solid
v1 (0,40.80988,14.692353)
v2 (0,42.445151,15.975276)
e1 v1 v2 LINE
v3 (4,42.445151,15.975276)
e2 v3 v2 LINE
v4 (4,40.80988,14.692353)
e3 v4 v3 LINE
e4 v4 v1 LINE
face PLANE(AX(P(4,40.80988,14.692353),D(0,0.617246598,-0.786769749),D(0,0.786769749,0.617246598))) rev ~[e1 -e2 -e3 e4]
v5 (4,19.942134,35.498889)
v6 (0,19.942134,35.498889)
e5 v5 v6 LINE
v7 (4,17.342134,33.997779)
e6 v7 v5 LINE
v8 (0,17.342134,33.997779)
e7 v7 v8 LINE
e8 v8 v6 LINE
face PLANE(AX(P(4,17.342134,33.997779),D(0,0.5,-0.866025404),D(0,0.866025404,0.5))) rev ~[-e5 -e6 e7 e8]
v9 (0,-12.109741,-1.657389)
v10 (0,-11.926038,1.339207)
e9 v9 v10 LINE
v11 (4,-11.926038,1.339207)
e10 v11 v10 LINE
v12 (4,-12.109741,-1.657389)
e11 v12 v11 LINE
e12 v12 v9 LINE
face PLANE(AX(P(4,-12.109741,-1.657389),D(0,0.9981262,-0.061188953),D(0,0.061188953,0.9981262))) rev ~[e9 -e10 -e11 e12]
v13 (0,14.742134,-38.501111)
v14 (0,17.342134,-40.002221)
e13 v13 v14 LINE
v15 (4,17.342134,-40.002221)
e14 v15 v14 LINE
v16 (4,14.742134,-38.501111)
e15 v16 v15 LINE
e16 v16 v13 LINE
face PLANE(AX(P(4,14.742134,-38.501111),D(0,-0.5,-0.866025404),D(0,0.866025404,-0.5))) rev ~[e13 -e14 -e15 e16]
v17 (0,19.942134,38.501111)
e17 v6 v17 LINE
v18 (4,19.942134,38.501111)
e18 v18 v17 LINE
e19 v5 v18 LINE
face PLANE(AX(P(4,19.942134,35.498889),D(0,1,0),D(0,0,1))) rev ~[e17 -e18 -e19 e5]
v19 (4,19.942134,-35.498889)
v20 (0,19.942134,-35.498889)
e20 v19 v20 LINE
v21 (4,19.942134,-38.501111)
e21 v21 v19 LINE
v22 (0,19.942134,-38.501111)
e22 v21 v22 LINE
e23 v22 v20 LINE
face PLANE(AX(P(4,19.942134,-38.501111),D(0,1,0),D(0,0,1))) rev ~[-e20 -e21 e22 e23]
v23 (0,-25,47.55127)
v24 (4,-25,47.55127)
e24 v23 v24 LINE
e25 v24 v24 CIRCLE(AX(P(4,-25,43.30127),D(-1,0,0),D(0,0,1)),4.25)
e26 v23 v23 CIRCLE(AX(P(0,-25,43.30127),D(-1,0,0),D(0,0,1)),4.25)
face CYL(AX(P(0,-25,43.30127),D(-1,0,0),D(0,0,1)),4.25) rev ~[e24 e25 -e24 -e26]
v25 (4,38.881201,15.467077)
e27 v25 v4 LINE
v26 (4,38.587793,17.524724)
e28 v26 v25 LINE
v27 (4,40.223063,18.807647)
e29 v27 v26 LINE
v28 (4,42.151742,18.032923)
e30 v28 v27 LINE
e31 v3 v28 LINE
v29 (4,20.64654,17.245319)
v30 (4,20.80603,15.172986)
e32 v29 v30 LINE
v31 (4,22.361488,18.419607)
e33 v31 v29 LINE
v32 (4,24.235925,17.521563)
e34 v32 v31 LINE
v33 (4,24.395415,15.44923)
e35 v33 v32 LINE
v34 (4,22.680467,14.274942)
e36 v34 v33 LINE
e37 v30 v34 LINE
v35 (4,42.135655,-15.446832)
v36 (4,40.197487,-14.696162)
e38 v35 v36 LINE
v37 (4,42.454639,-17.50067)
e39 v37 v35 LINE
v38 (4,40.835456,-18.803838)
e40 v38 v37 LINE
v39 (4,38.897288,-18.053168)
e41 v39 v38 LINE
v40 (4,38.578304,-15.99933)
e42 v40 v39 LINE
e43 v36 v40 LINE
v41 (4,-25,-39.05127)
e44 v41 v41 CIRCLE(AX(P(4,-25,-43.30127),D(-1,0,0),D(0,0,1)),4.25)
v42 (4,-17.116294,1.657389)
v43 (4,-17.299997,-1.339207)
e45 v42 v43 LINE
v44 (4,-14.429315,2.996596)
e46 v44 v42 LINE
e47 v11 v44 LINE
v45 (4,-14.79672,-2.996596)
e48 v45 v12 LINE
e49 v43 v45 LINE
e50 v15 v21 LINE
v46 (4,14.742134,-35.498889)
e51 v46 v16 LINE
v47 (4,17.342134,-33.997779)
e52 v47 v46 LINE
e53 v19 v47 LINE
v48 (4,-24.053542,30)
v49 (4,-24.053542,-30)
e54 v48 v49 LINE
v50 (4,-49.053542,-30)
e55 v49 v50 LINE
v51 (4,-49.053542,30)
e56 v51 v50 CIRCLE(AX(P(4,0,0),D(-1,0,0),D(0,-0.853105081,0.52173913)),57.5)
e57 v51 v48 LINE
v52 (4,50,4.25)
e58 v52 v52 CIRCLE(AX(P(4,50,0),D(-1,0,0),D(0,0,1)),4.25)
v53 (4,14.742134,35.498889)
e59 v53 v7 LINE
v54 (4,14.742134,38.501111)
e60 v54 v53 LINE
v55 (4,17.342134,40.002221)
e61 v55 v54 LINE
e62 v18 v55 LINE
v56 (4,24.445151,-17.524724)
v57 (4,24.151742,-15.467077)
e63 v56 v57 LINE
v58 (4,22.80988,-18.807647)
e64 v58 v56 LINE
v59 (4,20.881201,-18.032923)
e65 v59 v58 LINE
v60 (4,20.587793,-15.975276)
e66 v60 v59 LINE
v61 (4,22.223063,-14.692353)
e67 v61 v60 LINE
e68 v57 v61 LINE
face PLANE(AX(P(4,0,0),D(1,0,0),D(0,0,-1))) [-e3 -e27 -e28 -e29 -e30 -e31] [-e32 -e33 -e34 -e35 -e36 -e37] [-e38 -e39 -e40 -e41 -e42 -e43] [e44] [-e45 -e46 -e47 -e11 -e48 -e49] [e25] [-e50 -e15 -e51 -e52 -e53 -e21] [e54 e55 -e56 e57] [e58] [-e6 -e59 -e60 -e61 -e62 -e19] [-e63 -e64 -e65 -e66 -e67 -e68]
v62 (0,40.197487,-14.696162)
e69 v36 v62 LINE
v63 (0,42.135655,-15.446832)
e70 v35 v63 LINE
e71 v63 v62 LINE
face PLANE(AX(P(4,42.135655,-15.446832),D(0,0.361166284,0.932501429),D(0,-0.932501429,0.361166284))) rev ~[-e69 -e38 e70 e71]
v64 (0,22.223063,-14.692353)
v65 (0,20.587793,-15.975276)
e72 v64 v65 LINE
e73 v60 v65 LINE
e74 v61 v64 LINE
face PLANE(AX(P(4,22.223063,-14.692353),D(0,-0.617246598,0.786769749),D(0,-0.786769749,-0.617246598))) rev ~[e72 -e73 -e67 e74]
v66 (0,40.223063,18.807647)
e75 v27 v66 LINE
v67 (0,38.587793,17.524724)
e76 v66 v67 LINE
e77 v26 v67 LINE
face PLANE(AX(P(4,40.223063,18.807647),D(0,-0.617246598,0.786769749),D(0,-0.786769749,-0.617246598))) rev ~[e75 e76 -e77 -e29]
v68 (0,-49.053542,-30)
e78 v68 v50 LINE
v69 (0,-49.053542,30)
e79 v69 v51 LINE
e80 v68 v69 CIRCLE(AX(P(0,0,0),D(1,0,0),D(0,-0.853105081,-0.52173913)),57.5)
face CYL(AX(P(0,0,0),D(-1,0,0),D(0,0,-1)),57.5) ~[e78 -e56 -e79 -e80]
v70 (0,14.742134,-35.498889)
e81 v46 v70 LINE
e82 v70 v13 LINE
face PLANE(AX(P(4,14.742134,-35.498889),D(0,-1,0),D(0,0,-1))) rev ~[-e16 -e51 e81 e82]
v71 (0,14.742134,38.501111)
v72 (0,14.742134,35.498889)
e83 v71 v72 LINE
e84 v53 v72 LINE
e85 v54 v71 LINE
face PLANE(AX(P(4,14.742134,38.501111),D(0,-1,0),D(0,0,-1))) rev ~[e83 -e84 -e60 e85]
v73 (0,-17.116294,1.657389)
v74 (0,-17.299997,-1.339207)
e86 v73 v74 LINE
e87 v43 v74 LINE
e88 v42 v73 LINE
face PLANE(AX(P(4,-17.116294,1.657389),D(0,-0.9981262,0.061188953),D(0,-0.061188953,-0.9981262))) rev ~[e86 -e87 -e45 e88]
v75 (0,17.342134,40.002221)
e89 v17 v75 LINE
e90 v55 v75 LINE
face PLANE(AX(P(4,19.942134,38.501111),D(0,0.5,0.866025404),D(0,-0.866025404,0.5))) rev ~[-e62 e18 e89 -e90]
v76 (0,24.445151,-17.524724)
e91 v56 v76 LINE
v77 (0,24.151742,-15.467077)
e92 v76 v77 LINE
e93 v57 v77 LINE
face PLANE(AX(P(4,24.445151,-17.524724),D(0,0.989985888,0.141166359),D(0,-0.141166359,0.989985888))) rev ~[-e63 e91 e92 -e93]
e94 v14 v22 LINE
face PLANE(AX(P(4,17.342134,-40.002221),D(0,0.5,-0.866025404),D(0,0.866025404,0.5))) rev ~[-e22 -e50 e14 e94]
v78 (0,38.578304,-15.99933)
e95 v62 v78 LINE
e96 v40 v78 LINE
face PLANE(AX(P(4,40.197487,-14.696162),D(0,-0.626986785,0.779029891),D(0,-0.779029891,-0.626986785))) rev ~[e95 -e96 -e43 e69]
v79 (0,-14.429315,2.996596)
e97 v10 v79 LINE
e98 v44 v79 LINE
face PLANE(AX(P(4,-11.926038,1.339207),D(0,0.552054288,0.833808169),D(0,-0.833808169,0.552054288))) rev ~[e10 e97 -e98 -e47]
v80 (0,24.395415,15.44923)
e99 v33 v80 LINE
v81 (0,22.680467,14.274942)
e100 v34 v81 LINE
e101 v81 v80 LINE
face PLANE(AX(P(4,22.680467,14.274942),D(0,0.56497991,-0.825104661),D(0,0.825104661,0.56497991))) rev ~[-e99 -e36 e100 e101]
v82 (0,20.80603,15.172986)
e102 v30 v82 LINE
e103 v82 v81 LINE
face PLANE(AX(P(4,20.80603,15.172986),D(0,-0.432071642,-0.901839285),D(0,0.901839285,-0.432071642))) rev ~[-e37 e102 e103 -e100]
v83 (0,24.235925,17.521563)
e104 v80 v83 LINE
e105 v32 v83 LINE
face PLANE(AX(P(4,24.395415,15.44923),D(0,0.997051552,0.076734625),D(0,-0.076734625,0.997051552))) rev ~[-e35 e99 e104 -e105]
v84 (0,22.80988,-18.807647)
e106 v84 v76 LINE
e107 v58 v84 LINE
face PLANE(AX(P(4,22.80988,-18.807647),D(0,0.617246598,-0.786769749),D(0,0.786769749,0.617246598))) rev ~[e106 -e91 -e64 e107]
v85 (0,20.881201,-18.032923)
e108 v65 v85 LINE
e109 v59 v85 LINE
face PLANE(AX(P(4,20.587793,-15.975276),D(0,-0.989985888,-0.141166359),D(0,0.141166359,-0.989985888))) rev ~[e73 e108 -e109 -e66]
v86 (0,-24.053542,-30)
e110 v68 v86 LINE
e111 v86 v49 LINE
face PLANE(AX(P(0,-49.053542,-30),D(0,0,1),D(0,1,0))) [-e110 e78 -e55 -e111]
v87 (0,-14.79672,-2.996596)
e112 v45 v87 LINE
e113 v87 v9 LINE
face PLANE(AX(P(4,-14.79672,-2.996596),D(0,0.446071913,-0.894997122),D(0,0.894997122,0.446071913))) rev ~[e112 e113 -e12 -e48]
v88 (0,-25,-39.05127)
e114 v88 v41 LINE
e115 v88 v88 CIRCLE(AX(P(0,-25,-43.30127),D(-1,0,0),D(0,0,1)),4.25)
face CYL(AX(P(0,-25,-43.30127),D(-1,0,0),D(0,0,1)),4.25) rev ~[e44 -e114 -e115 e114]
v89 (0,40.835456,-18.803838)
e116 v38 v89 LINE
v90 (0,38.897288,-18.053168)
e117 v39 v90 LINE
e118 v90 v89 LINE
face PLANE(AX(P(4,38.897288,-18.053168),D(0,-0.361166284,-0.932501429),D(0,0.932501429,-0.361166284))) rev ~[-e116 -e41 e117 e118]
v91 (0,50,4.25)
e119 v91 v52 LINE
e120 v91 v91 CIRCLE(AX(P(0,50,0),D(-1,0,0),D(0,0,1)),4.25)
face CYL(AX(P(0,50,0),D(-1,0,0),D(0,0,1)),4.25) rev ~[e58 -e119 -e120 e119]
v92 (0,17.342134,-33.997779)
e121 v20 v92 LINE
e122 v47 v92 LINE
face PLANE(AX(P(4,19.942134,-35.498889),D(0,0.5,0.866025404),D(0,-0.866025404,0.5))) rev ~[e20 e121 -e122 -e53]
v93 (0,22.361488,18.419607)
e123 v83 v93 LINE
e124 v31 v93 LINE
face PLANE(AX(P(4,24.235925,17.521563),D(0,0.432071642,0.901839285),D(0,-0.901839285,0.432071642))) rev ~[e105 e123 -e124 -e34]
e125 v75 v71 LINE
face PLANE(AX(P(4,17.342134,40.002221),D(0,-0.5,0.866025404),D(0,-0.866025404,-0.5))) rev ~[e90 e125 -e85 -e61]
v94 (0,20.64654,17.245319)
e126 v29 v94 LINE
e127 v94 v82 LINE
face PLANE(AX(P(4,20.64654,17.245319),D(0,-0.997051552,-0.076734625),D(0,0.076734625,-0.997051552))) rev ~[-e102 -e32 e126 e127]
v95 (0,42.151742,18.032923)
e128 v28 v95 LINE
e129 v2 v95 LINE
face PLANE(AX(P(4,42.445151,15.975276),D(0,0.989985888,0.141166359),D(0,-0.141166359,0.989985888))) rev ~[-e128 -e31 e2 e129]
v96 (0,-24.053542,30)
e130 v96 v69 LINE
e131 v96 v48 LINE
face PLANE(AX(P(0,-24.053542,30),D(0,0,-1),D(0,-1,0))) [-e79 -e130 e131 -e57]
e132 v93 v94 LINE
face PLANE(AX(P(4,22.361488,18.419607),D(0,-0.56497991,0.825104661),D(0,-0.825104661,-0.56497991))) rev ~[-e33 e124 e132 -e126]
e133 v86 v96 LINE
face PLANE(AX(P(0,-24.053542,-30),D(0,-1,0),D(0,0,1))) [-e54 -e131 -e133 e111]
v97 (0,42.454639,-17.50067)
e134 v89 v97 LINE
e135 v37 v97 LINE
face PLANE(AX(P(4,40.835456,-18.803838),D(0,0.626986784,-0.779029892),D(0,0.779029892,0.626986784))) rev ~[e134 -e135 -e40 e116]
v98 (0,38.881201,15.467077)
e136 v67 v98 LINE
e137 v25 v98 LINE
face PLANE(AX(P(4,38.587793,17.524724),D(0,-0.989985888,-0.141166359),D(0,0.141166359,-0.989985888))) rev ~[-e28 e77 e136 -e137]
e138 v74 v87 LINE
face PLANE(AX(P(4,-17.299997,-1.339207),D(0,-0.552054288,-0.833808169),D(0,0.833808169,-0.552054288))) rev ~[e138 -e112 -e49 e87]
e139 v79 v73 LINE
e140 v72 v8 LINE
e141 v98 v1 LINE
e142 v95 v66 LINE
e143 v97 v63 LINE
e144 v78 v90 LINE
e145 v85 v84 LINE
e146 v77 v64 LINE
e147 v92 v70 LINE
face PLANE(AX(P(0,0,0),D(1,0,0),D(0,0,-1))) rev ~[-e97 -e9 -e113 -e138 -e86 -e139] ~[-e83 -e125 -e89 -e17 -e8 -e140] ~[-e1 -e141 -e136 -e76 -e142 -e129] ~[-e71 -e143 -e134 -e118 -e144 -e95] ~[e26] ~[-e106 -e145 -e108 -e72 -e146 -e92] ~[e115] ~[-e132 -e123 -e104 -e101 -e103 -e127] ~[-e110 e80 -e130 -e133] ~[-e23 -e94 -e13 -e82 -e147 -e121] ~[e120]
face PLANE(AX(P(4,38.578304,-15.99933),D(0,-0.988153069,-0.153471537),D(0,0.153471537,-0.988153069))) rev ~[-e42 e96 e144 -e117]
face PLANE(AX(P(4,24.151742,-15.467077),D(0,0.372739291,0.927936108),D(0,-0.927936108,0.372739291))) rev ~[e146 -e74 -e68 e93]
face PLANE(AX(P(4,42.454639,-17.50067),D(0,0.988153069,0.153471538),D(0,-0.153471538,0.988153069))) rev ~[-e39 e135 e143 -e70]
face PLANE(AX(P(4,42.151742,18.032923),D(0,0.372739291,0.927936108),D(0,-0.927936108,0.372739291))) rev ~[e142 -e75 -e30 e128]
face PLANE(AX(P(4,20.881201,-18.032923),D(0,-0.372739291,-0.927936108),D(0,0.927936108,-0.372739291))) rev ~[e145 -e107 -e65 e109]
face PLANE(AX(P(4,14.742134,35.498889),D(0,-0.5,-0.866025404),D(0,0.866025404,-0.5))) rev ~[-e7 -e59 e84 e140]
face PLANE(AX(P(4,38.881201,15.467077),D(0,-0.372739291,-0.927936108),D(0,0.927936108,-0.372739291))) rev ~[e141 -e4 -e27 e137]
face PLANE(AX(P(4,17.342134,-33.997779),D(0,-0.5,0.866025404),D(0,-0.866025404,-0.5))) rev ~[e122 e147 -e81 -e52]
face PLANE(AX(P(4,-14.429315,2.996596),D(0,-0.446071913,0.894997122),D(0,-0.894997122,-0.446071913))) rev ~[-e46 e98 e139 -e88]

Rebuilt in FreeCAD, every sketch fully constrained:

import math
import FreeCAD as App
import Part
import Sketcher

V = App.Vector
Q = App.Units.Quantity


def add_polygon(sketch, points):
    """Adds a closed chain of lines whose ends are joined by coincident constraints."""
    first, n = sketch.GeometryCount, len(points)
    for a, b in zip(points, points[1:] + points[:1]):
        sketch.addGeometry(Part.LineSegment(App.Vector(*a, 0), App.Vector(*b, 0)), False)
    for i in range(n):
        sketch.addConstraint(Sketcher.Constraint("Coincident", first + i, 2, first + (i + 1) % n, 1))

doc = App.newDocument("Part")
body = doc.addObject("PartDesign::Body", "Body")

# Sketch on YZ plane
sketch1 = body.newObject("Sketcher::SketchObject", "Sketch")
sketch1.AttachmentSupport = (doc.getObject("YZ_Plane"), [""])
sketch1.MapMode = "FlatFace"
sketch1.addGeometry(Part.Circle(V(0, 0, 0), V(0, 0, 1), 57.5), False)
sketch1.addConstraint([
    Sketcher.Constraint("Coincident", 0, 3, -1, 1),
    Sketcher.Constraint("Diameter", 0, 115.0),
])
pad1 = body.newObject("PartDesign::Pad", "Pad")
pad1.Profile = sketch1
pad1.Length = 4

# Sketch on YZ plane
sketch2 = body.newObject("Sketcher::SketchObject", "Sketch001")
sketch2.AttachmentSupport = (doc.getObject("YZ_Plane"), [""])
sketch2.MapMode = "FlatFace"
sketch2.addGeometry([
    Part.Circle(V(50, 0, 0), V(0, 0, 1), 4.25),
    Part.Circle(V(-25, 43.30127, 0), V(0, 0, 1), 4.25),
    Part.Circle(V(-25, -43.30127, 0), V(0, 0, 1), 4.25),
], False)
sketch2.addConstraint([
    Sketcher.Constraint("Equal", 0, 1),
    Sketcher.Constraint("Equal", 1, 2),
    Sketcher.Constraint("Symmetric", 1, 3, 2, 3, -1),
    Sketcher.Constraint("PointOnObject", 0, 3, -1),
    Sketcher.Constraint("Diameter", 0, 8.5),
    Sketcher.Constraint("DistanceX", -1, 1, 0, 3, 50.0),
    Sketcher.Constraint("DistanceX", 1, 3, -1, 1, 25.0),
    Sketcher.Constraint("DistanceY", -1, 1, 1, 3, 43.30127),
])
pocket1 = body.newObject("PartDesign::Pocket", "Pocket")
pocket1.Profile = sketch2
pocket1.Type = "ThroughAll"
pocket1.Reversed = True

# Sketch on YZ plane
sketch3 = body.newObject("Sketcher::SketchObject", "Sketch002")
sketch3.AttachmentSupport = (doc.getObject("YZ_Plane"), [""])
sketch3.MapMode = "FlatFace"
sketch3.addGeometry([
    Part.LineSegment(V(-24.053542, -30, 0), V(-49.053542, -30, 0)),
    Part.ArcOfCircle(Part.Circle(V(0, 0, 0), V(0, 0, 1), 57.5), math.radians(148.551019), math.radians(211.448981)),
    Part.LineSegment(V(-49.053542, 30, 0), V(-24.053542, 30, 0)),
    Part.LineSegment(V(-24.053542, 30, 0), V(-24.053542, -30, 0)),
], False)
sketch3.addConstraint([
    Sketcher.Constraint("Coincident", 0, 2, 1, 2),
    Sketcher.Constraint("Coincident", 1, 1, 2, 1),
    Sketcher.Constraint("Coincident", 2, 2, 3, 1),
    Sketcher.Constraint("Coincident", 3, 2, 0, 1),
    Sketcher.Constraint("Horizontal", 0),
    Sketcher.Constraint("Horizontal", 2),
    Sketcher.Constraint("Vertical", 3),
    Sketcher.Constraint("Coincident", 1, 3, -1, 1),
    Sketcher.Constraint("Vertical", 0, 2, 1, 1),
    Sketcher.Constraint("Radius", 1, 57.5),
    Sketcher.Constraint("DistanceX", 0, 2, 0, 1, 25.0),
    Sketcher.Constraint("DistanceY", 3, 2, 3, 1, 60.0),
])
pocket2 = body.newObject("PartDesign::Pocket", "Pocket001")
pocket2.Profile = sketch3
pocket2.Type = "ThroughAll"
pocket2.Reversed = True

# Sketch on YZ plane
sketch4 = body.newObject("Sketcher::SketchObject", "Sketch003")
sketch4.AttachmentSupport = (doc.getObject("YZ_Plane"), [""])
sketch4.MapMode = "FlatFace"
sketch4.AttachmentOffset = App.Placement(V(0, 0, 4), App.Rotation())
add_polygon(sketch4, [(38.578304, -15.99933), (38.897288, -18.053168), (40.835456, -18.803838), (42.454639, -17.50067), (42.135655, -15.446832), (40.197487, -14.696162)])  # lines 0-5
add_polygon(sketch4, [(38.587793, 17.524724), (38.881201, 15.467077), (40.80988, 14.692353), (42.445151, 15.975276), (42.151742, 18.032923), (40.223063, 18.807647)])  # lines 6-11
add_polygon(sketch4, [(20.587793, -15.975276), (20.881201, -18.032923), (22.80988, -18.807647), (24.445151, -17.524724), (24.151742, -15.467077), (22.223063, -14.692353)])  # lines 12-17
add_polygon(sketch4, [(20.64654, 17.245319), (20.80603, 15.172986), (22.680467, 14.274942), (24.395415, 15.44923), (24.235925, 17.521563), (22.361488, 18.419607)])  # lines 18-23
add_polygon(sketch4, [(17.342134, -33.997779), (14.742134, -35.498889), (14.742134, -38.501111), (17.342134, -40.002221), (19.942134, -38.501111), (19.942134, -35.498889)])  # lines 24-29
add_polygon(sketch4, [(17.342134, 40.002221), (14.742134, 38.501111), (14.742134, 35.498889), (17.342134, 33.997779), (19.942134, 35.498889), (19.942134, 38.501111)])  # lines 30-35
add_polygon(sketch4, [(-17.116294, 1.657389), (-17.299997, -1.339207), (-14.79672, -2.996596), (-12.109741, -1.657389), (-11.926038, 1.339207), (-14.429315, 2.996596)])  # lines 36-41
sketch4.addConstraint([
    Sketcher.Constraint("Vertical", 25),
    Sketcher.Constraint("Vertical", 28),
    Sketcher.Constraint("Vertical", 31),
    Sketcher.Constraint("Vertical", 34),
    Sketcher.Constraint("Symmetric", 25, 2, 30, 2, -1),
    Sketcher.Constraint("Symmetric", 29, 2, 32, 2, -1),
    Sketcher.Constraint("Symmetric", 28, 2, 33, 2, -1),
    Sketcher.Constraint("Symmetric", 26, 2, 35, 2, -1),
    Sketcher.Constraint("Parallel", 0, 3),
    Sketcher.Constraint("Parallel", 1, 4),
    Sketcher.Constraint("Parallel", 2, 5),
    Sketcher.Constraint("Parallel", 6, 9),
    Sketcher.Constraint("Parallel", 7, 10),
    Sketcher.Constraint("Parallel", 8, 11),
    Sketcher.Constraint("Parallel", 9, 12),
    Sketcher.Constraint("Parallel", 10, 13),
    Sketcher.Constraint("Parallel", 11, 14),
    Sketcher.Constraint("Parallel", 12, 15),
    Sketcher.Constraint("Parallel", 13, 16),
    Sketcher.Constraint("Parallel", 14, 17),
    Sketcher.Constraint("Parallel", 18, 21),
    Sketcher.Constraint("Parallel", 19, 22),
    Sketcher.Constraint("Parallel", 20, 23),
    Sketcher.Constraint("Parallel", 24, 27),
    Sketcher.Constraint("Parallel", 26, 29),
    Sketcher.Constraint("Parallel", 27, 30),
    Sketcher.Constraint("Parallel", 29, 32),
    Sketcher.Constraint("Parallel", 32, 35),
    Sketcher.Constraint("Parallel", 36, 39),
    Sketcher.Constraint("Parallel", 37, 40),
    Sketcher.Constraint("Parallel", 38, 41),
    Sketcher.Constraint("Horizontal", 25, 2, 27, 2),
    Sketcher.Constraint("Horizontal", 24, 2, 28, 2),
    Sketcher.Constraint("Equal", 0, 1),
    Sketcher.Constraint("Equal", 1, 2),
    Sketcher.Constraint("Equal", 2, 3),
    Sketcher.Constraint("Equal", 5, 6),
    Sketcher.Constraint("Equal", 6, 7),
    Sketcher.Constraint("Equal", 7, 8),
    Sketcher.Constraint("Equal", 8, 9),
    Sketcher.Constraint("Equal", 11, 12),
    Sketcher.Constraint("Equal", 12, 13),
    Sketcher.Constraint("Equal", 13, 14),
    Sketcher.Constraint("Equal", 14, 15),
    Sketcher.Constraint("Equal", 17, 18),
    Sketcher.Constraint("Equal", 18, 19),
    Sketcher.Constraint("Equal", 19, 20),
    Sketcher.Constraint("Equal", 20, 21),
    Sketcher.Constraint("Equal", 35, 36),
    Sketcher.Constraint("Equal", 36, 37),
    Sketcher.Constraint("Equal", 37, 38),
    Sketcher.Constraint("Equal", 38, 39),
    Sketcher.Constraint("Angle", 24, Q("-150 deg")),
    Sketcher.Constraint("DistanceX", 25, 2, 26, 2, 2.6),
    Sketcher.Constraint("DistanceY", 25, 2, 25, 1, 3.002221),
    Sketcher.Constraint("DistanceX", -1, 1, 6, 2, 38.881201),
    Sketcher.Constraint("DistanceX", -1, 1, 12, 2, 20.881201),
    Sketcher.Constraint("DistanceX", 1, 2, 3, 2, 1.300199),
    Sketcher.Constraint("DistanceY", 6, 2, 8, 2, 0.508199),
    Sketcher.Constraint("DistanceY", 26, 2, 12, 2, 21.969298),
    Sketcher.Constraint("DistanceX", 36, 2, 12, 2, 38.181198),
    Sketcher.Constraint("Distance", 0, 2.078461),
    Sketcher.Constraint("DistanceX", -1, 1, 0, 2, 38.897288),
    Sketcher.Constraint("DistanceX", -1, 1, 2, 2, 42.454639),
    Sketcher.Constraint("DistanceY", 2, 2, -1, 1, 17.50067),
    Sketcher.Constraint("DistanceY", 5, 2, -1, 1, 15.99933),
    Sketcher.Constraint("DistanceX", -1, 1, 7, 2, 40.80988),
    Sketcher.Constraint("DistanceX", -1, 1, 9, 2, 42.151742),
    Sketcher.Constraint("DistanceX", -1, 1, 18, 2, 20.80603),
    Sketcher.Constraint("DistanceY", -1, 1, 19, 2, 14.274942),
    Sketcher.Constraint("DistanceY", -1, 1, 20, 2, 15.44923),
    Sketcher.Constraint("DistanceX", -1, 1, 23, 2, 20.64654),
    Sketcher.Constraint("DistanceY", -1, 1, 23, 2, 17.245319),
    Sketcher.Constraint("DistanceY", 24, 2, -1, 1, 35.498889),
    Sketcher.Constraint("DistanceX", 37, 2, -1, 1, 14.79672),
    Sketcher.Constraint("DistanceX", 38, 2, -1, 1, 12.109741),
    Sketcher.Constraint("DistanceY", 38, 2, -1, 1, 1.657389),
    Sketcher.Constraint("DistanceY", -1, 1, 41, 2, 1.657389),
    Sketcher.Constraint("DistanceY", 4, 2, 6, 2, 30.163239),
    Sketcher.Constraint("DistanceX", 24, 2, 17, 2, 5.845659),
])
pocket3 = body.newObject("PartDesign::Pocket", "Pocket002")
pocket3.Profile = sketch4
pocket3.Type = "ThroughAll"

doc.recompute()
